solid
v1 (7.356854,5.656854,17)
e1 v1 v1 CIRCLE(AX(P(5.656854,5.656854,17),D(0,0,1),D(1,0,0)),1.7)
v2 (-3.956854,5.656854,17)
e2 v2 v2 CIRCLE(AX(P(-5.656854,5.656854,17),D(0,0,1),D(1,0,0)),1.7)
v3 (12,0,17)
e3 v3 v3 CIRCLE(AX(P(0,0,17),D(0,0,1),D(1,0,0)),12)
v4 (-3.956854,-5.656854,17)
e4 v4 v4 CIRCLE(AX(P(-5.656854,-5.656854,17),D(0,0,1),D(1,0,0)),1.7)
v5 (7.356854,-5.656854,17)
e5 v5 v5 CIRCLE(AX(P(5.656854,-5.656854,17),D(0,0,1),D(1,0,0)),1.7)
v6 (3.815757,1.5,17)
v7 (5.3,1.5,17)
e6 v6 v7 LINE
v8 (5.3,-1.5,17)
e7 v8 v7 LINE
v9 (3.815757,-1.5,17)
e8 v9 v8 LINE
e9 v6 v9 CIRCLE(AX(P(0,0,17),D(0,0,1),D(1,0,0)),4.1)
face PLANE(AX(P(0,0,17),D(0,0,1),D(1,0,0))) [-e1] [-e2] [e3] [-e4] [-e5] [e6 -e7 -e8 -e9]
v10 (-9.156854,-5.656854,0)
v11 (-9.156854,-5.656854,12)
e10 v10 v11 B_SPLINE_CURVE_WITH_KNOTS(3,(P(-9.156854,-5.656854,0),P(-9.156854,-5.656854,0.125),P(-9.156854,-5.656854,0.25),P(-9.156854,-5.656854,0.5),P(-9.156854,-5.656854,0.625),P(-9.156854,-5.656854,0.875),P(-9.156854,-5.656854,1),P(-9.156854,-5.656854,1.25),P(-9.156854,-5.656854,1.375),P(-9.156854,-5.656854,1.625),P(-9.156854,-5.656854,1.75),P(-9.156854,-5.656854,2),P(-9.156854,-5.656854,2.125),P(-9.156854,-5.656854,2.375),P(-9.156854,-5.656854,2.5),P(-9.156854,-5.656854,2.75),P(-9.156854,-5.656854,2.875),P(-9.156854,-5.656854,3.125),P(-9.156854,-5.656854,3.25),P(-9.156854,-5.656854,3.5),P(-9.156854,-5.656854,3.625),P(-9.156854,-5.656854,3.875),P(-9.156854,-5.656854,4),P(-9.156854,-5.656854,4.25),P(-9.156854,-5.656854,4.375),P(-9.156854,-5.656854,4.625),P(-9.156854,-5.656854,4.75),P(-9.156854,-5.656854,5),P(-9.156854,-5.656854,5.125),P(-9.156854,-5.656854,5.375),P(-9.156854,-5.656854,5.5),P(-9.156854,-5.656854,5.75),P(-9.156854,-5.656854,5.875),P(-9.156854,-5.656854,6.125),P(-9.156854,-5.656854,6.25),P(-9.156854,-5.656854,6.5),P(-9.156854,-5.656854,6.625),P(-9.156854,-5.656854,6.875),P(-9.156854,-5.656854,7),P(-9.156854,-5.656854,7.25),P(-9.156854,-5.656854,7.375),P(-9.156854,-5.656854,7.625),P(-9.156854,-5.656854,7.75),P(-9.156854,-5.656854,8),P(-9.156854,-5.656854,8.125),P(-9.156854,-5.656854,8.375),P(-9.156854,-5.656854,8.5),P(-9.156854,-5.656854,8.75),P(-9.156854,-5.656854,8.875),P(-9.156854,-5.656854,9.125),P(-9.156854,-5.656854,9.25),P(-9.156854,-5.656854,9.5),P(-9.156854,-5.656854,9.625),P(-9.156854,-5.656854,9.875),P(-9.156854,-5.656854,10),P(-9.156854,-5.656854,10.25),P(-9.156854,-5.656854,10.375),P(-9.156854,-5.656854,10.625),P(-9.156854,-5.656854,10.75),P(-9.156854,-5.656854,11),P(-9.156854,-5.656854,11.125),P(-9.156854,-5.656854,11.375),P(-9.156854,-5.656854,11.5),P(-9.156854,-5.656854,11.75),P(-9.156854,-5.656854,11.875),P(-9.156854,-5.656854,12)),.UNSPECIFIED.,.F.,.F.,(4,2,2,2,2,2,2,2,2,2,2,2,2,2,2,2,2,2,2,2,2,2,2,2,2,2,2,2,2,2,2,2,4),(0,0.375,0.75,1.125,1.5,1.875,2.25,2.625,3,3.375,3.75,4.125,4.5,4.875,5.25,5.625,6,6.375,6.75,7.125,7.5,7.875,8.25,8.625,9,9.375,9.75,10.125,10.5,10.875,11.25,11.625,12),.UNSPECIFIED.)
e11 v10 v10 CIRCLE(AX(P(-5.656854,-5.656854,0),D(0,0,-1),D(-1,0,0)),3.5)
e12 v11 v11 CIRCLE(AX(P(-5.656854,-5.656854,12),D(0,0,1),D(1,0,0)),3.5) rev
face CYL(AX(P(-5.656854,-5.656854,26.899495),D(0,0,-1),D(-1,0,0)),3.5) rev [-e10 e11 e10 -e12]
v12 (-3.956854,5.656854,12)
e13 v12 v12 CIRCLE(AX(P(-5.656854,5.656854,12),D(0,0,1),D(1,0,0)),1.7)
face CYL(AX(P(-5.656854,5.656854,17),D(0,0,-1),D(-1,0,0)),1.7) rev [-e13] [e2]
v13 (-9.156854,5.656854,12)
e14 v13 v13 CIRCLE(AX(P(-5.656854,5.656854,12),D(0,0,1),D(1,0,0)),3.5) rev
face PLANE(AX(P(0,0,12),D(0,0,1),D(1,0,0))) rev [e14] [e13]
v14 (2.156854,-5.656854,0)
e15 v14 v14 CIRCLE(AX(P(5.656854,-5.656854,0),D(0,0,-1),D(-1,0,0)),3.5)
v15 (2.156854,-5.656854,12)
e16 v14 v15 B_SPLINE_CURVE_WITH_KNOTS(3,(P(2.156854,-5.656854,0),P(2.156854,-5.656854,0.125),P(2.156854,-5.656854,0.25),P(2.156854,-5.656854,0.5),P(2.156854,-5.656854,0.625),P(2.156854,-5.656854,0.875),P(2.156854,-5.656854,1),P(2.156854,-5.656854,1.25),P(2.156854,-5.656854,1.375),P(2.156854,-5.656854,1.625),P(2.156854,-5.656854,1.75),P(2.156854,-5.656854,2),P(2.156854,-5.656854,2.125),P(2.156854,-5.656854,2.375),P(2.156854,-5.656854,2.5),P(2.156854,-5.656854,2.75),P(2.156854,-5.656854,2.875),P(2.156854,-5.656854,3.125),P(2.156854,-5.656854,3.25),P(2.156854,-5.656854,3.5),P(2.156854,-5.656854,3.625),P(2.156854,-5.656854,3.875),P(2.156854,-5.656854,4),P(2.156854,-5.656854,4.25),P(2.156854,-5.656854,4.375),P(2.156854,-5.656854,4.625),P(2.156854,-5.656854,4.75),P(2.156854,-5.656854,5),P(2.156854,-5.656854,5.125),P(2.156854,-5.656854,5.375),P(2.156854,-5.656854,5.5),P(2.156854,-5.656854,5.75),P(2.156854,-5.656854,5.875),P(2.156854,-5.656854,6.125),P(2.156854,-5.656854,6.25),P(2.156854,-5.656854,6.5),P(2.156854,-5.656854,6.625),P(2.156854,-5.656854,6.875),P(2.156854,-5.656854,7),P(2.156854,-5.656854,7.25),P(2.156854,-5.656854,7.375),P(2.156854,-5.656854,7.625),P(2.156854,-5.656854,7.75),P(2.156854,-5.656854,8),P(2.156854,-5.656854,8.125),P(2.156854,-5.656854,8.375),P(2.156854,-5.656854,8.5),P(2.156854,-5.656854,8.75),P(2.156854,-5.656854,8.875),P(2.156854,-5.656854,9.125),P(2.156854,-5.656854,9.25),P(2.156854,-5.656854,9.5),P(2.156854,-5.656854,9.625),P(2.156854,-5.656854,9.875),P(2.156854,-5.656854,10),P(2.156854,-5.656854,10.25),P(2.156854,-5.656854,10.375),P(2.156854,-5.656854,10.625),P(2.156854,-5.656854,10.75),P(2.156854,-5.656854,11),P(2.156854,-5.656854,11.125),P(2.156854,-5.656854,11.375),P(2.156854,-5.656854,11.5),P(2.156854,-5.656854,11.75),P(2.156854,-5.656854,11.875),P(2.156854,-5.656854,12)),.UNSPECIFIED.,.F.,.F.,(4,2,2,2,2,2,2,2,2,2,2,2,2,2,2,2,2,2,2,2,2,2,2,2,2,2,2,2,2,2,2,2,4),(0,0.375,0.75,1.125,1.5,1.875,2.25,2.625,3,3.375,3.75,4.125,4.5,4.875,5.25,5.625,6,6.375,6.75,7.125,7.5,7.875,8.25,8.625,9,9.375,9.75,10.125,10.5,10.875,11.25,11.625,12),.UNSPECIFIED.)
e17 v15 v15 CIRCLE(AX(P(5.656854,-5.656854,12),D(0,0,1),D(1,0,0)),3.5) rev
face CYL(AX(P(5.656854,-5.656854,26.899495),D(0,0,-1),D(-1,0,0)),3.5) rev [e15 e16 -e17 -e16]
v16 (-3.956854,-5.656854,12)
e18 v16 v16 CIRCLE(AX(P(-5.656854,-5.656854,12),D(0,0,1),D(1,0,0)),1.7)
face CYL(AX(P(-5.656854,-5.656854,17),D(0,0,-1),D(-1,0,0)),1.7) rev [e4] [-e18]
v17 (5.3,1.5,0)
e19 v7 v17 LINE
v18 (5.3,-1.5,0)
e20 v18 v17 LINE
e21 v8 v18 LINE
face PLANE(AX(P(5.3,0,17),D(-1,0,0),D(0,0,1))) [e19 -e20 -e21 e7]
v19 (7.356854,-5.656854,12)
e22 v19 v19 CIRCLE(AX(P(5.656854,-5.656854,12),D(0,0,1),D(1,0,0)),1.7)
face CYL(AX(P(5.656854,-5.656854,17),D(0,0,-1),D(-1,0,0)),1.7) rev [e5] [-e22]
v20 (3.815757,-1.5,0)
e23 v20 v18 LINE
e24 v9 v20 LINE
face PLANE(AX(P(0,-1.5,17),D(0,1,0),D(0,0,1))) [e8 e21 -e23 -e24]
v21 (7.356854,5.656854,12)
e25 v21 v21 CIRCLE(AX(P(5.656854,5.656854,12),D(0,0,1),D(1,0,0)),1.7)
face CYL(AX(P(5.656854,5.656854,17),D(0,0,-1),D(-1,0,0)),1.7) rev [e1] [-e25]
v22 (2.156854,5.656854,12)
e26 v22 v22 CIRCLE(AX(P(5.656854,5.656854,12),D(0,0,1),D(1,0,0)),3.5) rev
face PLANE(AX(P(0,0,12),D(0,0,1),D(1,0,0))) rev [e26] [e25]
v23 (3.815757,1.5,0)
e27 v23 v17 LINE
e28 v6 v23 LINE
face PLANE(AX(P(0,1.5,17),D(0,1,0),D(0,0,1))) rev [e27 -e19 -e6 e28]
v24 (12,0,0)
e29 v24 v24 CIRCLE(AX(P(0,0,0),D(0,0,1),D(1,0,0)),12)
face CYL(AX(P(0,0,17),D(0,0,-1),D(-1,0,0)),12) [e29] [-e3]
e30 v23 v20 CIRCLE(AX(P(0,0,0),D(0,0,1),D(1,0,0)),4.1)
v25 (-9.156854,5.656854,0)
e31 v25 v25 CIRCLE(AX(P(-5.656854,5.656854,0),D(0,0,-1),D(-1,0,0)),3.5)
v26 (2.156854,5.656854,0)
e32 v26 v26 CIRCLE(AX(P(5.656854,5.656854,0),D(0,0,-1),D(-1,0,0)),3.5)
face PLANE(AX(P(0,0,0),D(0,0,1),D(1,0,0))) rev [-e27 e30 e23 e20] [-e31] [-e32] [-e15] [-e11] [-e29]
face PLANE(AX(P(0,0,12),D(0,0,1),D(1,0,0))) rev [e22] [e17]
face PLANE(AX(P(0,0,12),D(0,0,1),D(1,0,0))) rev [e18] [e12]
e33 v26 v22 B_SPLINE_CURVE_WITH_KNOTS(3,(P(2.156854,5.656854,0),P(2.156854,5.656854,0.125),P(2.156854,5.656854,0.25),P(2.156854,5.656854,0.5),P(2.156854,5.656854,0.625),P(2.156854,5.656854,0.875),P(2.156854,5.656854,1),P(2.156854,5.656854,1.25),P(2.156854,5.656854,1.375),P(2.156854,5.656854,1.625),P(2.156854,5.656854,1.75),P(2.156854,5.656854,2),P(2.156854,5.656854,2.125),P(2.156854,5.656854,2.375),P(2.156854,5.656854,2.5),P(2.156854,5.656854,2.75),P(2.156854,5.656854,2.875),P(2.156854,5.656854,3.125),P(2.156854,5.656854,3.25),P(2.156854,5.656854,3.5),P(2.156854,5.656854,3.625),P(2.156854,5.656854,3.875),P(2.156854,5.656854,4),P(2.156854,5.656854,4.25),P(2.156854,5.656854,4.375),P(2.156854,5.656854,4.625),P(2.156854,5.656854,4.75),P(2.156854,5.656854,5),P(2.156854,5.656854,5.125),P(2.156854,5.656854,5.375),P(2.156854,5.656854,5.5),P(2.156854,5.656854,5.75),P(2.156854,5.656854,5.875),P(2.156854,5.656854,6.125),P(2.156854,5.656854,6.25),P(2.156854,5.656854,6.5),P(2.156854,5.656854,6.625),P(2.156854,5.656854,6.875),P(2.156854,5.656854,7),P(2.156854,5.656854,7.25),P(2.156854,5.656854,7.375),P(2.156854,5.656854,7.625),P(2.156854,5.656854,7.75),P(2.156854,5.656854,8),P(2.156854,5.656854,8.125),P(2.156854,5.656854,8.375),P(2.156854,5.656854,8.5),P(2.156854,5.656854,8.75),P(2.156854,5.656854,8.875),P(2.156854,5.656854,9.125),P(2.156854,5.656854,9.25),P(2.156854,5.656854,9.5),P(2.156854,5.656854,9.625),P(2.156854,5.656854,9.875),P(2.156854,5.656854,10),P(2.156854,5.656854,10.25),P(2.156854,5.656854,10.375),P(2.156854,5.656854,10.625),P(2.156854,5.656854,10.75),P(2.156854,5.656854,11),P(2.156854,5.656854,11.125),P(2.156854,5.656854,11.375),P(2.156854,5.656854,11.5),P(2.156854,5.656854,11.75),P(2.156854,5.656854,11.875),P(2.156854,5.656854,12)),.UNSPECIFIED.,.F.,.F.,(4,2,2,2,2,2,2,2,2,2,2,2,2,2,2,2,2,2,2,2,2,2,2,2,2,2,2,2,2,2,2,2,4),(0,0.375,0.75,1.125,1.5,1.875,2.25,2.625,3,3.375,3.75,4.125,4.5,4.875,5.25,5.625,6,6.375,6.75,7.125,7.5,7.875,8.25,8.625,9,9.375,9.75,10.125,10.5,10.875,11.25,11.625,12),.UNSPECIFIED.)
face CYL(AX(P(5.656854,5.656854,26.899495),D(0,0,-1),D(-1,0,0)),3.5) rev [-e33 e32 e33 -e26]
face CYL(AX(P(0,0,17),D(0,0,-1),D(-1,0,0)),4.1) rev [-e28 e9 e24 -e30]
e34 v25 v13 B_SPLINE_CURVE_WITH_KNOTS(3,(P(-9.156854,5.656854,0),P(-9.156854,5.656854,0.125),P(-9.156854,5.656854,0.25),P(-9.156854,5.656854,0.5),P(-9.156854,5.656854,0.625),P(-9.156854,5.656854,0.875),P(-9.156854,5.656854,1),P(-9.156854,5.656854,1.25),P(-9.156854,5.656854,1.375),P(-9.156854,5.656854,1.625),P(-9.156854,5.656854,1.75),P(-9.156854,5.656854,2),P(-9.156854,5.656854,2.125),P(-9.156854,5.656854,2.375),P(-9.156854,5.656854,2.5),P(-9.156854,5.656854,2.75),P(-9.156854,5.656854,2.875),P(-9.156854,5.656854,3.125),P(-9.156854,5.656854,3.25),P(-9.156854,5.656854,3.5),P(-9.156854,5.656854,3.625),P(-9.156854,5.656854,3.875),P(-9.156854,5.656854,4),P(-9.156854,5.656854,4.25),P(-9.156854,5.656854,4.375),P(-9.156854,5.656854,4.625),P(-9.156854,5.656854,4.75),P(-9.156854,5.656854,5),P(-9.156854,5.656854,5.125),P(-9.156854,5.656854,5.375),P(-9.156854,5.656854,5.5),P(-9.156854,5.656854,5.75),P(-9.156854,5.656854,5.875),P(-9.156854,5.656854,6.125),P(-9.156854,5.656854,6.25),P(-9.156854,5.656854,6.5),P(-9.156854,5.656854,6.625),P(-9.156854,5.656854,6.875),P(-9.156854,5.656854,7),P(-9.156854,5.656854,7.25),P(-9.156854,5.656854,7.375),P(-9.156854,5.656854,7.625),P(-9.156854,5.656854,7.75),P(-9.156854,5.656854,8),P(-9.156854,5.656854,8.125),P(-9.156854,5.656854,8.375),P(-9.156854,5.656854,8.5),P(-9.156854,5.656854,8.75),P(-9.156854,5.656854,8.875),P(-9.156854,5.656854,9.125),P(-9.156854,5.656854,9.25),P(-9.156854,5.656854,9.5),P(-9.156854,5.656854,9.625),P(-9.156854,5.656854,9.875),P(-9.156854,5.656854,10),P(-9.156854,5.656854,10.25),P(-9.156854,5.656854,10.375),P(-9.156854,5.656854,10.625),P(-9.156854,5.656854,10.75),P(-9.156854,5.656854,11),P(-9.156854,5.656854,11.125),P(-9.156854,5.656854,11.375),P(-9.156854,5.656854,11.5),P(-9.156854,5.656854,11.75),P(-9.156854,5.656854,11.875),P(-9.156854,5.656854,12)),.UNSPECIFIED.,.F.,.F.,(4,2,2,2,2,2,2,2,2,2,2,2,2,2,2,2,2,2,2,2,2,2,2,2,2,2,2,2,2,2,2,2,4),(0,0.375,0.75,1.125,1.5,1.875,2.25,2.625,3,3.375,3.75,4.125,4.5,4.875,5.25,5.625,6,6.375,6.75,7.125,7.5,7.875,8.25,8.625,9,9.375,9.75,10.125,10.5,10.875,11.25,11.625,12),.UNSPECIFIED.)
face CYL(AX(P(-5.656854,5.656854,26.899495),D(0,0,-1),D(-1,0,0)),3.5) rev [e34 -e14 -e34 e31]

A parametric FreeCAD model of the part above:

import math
import FreeCAD as App
import Part
import Sketcher

V = App.Vector

doc = App.newDocument("Part")
params = doc.addObject("Spreadsheet::Sheet", "Params")
for row, (alias, value) in enumerate([
    ("sketch1_diameter", "24 mm"),
    ("sketch1_diameter2", "3.4 mm"),
    ("sketch1_radius", "4.1 mm"),
    ("sketch1_height", "3 mm"),
    ("pad1_length", "17 mm"),
    ("sketch2_diameter", "7 mm"),
    ("pocket1_length", "12 mm"),
], start=1):
    params.set(f"A{row}", alias)
    params.set(f"B{row}", "=" + value)
    params.setAlias(f"B{row}", alias)

body = doc.addObject("PartDesign::Body", "Body")

# Sketch on XY plane
sketch1 = body.newObject("Sketcher::SketchObject", "Sketch")
sketch1.AttachmentSupport = (doc.getObject("XY_Plane"), [""])
sketch1.MapMode = "FlatFace"
sketch1.addGeometry(Part.Circle(V(0, 0, 0), V(0, 0, 1), 12), False)
sketch1.addGeometry(Part.Circle(V(-5.7, -5.7, 0), V(0, 0, 1), 1.7), False)
sketch1.addGeometry(Part.Circle(V(5.7, -5.7, 0), V(0, 0, 1), 1.7), False)
sketch1.addGeometry(Part.Circle(V(-5.7, 5.7, 0), V(0, 0, 1), 1.7), False)
sketch1.addGeometry(Part.LineSegment(V(5.3, -1.5, 0), V(3.8, -1.5, 0)), False)
sketch1.addGeometry(Part.ArcOfCircle(Part.Circle(V(0, 0, 0), V(0, 0, 1), 4.1), math.radians(21), math.radians(339)), False)
sketch1.addGeometry(Part.LineSegment(V(3.8, 1.5, 0), V(5.3, 1.5, 0)), False)
sketch1.addGeometry(Part.LineSegment(V(5.3, 1.5, 0), V(5.3, -1.5, 0)), False)
sketch1.addGeometry(Part.Circle(V(5.7, 5.7, 0), V(0, 0, 1), 1.7), False)
sketch1.addConstraint(Sketcher.Constraint("Coincident", 4, 2, 5, 2))
sketch1.addConstraint(Sketcher.Constraint("Coincident", 5, 1, 6, 1))
sketch1.addConstraint(Sketcher.Constraint("Coincident", 6, 2, 7, 1))
sketch1.addConstraint(Sketcher.Constraint("Coincident", 7, 2, 4, 1))
sketch1.addConstraint(Sketcher.Constraint("Horizontal", 4))
sketch1.addConstraint(Sketcher.Constraint("Horizontal", 6))
sketch1.addConstraint(Sketcher.Constraint("Vertical", 7))
sketch1.addConstraint(Sketcher.Constraint("Coincident", 0, 3, -1, 1))
sketch1.addConstraint(Sketcher.Constraint("Coincident", 5, 3, -1, 1))
sketch1.addConstraint(Sketcher.Constraint("Equal", 1, 2))
sketch1.addConstraint(Sketcher.Constraint("Equal", 2, 3))
sketch1.addConstraint(Sketcher.Constraint("Equal", 3, 8))
sketch1.addConstraint(Sketcher.Constraint("Symmetric", 2, 3, 3, 3, -1, 1))
sketch1.addConstraint(Sketcher.Constraint("Symmetric", 1, 3, 8, 3, -1, 1))
sketch1.addConstraint(Sketcher.Constraint("Symmetric", 1, 3, 2, 3, -2))
sketch1.addConstraint(Sketcher.Constraint("Vertical", 4, 2, 5, 1))
sketch1.addConstraint(Sketcher.Constraint("Diameter", 0, 24.0))
sketch1.addConstraint(Sketcher.Constraint("Diameter", 1, 3.4))
sketch1.addConstraint(Sketcher.Constraint("Radius", 5, 4.1))
sketch1.addConstraint(Sketcher.Constraint("DistanceY", 7, 2, 7, 1, 3.0))
sketch1.addConstraint(Sketcher.Constraint("DistanceX", -1, 1, 6, 2, 5.3))
sketch1.addConstraint(Sketcher.Constraint("DistanceX", 1, 3, 2, 3, 11.313708))
sketch1.addConstraint(Sketcher.Constraint("DistanceY", 1, 3, 3, 3, 11.313708))
sketch1.setExpression("Constraints[16]", "Params.sketch1_diameter")
sketch1.setExpression("Constraints[17]", "Params.sketch1_diameter2")
sketch1.setExpression("Constraints[18]", "Params.sketch1_radius")
sketch1.setExpression("Constraints[19]", "Params.sketch1_height")
pad1 = body.newObject("PartDesign::Pad", "Pad")
pad1.Profile = sketch1
pad1.setExpression("Length", "Params.pad1_length")

# Sketch on XY plane
sketch2 = body.newObject("Sketcher::SketchObject", "Sketch001")
sketch2.AttachmentSupport = (doc.getObject("XY_Plane"), [""])
sketch2.MapMode = "FlatFace"
sketch2.addGeometry(Part.Circle(V(5.7, 5.7, 0), V(0, 0, 1), 3.5), False)
sketch2.addGeometry(Part.Circle(V(-5.7, 5.7, 0), V(0, 0, 1), 3.5), False)
sketch2.addGeometry(Part.Circle(V(-5.7, -5.7, 0), V(0, 0, 1), 3.5), False)
sketch2.addGeometry(Part.Circle(V(5.7, -5.7, 0), V(0, 0, 1), 3.5), False)
sketch2.addConstraint(Sketcher.Constraint("Equal", 0, 1))
sketch2.addConstraint(Sketcher.Constraint("Equal", 1, 2))
sketch2.addConstraint(Sketcher.Constraint("Equal", 2, 3))
sketch2.addConstraint(Sketcher.Constraint("Symmetric", 0, 3, 2, 3, -1, 1))
sketch2.addConstraint(Sketcher.Constraint("Symmetric", 1, 3, 3, 3, -1, 1))
sketch2.addConstraint(Sketcher.Constraint("Symmetric", 0, 3, 1, 3, -2))
sketch2.addConstraint(Sketcher.Constraint("Diameter", 0, 7.0))
sketch2.addConstraint(Sketcher.Constraint("DistanceX", 1, 3, 0, 3, 11.313708))
sketch2.addConstraint(Sketcher.Constraint("DistanceY", 2, 3, 1, 3, 11.313708))
sketch2.setExpression("Constraints[6]", "Params.sketch2_diameter")
pocket1 = body.newObject("PartDesign::Pocket", "Pocket")
pocket1.Profile = sketch2
pocket1.setExpression("Length", "Params.pocket1_length")
pocket1.Reversed = True

doc.recompute()
